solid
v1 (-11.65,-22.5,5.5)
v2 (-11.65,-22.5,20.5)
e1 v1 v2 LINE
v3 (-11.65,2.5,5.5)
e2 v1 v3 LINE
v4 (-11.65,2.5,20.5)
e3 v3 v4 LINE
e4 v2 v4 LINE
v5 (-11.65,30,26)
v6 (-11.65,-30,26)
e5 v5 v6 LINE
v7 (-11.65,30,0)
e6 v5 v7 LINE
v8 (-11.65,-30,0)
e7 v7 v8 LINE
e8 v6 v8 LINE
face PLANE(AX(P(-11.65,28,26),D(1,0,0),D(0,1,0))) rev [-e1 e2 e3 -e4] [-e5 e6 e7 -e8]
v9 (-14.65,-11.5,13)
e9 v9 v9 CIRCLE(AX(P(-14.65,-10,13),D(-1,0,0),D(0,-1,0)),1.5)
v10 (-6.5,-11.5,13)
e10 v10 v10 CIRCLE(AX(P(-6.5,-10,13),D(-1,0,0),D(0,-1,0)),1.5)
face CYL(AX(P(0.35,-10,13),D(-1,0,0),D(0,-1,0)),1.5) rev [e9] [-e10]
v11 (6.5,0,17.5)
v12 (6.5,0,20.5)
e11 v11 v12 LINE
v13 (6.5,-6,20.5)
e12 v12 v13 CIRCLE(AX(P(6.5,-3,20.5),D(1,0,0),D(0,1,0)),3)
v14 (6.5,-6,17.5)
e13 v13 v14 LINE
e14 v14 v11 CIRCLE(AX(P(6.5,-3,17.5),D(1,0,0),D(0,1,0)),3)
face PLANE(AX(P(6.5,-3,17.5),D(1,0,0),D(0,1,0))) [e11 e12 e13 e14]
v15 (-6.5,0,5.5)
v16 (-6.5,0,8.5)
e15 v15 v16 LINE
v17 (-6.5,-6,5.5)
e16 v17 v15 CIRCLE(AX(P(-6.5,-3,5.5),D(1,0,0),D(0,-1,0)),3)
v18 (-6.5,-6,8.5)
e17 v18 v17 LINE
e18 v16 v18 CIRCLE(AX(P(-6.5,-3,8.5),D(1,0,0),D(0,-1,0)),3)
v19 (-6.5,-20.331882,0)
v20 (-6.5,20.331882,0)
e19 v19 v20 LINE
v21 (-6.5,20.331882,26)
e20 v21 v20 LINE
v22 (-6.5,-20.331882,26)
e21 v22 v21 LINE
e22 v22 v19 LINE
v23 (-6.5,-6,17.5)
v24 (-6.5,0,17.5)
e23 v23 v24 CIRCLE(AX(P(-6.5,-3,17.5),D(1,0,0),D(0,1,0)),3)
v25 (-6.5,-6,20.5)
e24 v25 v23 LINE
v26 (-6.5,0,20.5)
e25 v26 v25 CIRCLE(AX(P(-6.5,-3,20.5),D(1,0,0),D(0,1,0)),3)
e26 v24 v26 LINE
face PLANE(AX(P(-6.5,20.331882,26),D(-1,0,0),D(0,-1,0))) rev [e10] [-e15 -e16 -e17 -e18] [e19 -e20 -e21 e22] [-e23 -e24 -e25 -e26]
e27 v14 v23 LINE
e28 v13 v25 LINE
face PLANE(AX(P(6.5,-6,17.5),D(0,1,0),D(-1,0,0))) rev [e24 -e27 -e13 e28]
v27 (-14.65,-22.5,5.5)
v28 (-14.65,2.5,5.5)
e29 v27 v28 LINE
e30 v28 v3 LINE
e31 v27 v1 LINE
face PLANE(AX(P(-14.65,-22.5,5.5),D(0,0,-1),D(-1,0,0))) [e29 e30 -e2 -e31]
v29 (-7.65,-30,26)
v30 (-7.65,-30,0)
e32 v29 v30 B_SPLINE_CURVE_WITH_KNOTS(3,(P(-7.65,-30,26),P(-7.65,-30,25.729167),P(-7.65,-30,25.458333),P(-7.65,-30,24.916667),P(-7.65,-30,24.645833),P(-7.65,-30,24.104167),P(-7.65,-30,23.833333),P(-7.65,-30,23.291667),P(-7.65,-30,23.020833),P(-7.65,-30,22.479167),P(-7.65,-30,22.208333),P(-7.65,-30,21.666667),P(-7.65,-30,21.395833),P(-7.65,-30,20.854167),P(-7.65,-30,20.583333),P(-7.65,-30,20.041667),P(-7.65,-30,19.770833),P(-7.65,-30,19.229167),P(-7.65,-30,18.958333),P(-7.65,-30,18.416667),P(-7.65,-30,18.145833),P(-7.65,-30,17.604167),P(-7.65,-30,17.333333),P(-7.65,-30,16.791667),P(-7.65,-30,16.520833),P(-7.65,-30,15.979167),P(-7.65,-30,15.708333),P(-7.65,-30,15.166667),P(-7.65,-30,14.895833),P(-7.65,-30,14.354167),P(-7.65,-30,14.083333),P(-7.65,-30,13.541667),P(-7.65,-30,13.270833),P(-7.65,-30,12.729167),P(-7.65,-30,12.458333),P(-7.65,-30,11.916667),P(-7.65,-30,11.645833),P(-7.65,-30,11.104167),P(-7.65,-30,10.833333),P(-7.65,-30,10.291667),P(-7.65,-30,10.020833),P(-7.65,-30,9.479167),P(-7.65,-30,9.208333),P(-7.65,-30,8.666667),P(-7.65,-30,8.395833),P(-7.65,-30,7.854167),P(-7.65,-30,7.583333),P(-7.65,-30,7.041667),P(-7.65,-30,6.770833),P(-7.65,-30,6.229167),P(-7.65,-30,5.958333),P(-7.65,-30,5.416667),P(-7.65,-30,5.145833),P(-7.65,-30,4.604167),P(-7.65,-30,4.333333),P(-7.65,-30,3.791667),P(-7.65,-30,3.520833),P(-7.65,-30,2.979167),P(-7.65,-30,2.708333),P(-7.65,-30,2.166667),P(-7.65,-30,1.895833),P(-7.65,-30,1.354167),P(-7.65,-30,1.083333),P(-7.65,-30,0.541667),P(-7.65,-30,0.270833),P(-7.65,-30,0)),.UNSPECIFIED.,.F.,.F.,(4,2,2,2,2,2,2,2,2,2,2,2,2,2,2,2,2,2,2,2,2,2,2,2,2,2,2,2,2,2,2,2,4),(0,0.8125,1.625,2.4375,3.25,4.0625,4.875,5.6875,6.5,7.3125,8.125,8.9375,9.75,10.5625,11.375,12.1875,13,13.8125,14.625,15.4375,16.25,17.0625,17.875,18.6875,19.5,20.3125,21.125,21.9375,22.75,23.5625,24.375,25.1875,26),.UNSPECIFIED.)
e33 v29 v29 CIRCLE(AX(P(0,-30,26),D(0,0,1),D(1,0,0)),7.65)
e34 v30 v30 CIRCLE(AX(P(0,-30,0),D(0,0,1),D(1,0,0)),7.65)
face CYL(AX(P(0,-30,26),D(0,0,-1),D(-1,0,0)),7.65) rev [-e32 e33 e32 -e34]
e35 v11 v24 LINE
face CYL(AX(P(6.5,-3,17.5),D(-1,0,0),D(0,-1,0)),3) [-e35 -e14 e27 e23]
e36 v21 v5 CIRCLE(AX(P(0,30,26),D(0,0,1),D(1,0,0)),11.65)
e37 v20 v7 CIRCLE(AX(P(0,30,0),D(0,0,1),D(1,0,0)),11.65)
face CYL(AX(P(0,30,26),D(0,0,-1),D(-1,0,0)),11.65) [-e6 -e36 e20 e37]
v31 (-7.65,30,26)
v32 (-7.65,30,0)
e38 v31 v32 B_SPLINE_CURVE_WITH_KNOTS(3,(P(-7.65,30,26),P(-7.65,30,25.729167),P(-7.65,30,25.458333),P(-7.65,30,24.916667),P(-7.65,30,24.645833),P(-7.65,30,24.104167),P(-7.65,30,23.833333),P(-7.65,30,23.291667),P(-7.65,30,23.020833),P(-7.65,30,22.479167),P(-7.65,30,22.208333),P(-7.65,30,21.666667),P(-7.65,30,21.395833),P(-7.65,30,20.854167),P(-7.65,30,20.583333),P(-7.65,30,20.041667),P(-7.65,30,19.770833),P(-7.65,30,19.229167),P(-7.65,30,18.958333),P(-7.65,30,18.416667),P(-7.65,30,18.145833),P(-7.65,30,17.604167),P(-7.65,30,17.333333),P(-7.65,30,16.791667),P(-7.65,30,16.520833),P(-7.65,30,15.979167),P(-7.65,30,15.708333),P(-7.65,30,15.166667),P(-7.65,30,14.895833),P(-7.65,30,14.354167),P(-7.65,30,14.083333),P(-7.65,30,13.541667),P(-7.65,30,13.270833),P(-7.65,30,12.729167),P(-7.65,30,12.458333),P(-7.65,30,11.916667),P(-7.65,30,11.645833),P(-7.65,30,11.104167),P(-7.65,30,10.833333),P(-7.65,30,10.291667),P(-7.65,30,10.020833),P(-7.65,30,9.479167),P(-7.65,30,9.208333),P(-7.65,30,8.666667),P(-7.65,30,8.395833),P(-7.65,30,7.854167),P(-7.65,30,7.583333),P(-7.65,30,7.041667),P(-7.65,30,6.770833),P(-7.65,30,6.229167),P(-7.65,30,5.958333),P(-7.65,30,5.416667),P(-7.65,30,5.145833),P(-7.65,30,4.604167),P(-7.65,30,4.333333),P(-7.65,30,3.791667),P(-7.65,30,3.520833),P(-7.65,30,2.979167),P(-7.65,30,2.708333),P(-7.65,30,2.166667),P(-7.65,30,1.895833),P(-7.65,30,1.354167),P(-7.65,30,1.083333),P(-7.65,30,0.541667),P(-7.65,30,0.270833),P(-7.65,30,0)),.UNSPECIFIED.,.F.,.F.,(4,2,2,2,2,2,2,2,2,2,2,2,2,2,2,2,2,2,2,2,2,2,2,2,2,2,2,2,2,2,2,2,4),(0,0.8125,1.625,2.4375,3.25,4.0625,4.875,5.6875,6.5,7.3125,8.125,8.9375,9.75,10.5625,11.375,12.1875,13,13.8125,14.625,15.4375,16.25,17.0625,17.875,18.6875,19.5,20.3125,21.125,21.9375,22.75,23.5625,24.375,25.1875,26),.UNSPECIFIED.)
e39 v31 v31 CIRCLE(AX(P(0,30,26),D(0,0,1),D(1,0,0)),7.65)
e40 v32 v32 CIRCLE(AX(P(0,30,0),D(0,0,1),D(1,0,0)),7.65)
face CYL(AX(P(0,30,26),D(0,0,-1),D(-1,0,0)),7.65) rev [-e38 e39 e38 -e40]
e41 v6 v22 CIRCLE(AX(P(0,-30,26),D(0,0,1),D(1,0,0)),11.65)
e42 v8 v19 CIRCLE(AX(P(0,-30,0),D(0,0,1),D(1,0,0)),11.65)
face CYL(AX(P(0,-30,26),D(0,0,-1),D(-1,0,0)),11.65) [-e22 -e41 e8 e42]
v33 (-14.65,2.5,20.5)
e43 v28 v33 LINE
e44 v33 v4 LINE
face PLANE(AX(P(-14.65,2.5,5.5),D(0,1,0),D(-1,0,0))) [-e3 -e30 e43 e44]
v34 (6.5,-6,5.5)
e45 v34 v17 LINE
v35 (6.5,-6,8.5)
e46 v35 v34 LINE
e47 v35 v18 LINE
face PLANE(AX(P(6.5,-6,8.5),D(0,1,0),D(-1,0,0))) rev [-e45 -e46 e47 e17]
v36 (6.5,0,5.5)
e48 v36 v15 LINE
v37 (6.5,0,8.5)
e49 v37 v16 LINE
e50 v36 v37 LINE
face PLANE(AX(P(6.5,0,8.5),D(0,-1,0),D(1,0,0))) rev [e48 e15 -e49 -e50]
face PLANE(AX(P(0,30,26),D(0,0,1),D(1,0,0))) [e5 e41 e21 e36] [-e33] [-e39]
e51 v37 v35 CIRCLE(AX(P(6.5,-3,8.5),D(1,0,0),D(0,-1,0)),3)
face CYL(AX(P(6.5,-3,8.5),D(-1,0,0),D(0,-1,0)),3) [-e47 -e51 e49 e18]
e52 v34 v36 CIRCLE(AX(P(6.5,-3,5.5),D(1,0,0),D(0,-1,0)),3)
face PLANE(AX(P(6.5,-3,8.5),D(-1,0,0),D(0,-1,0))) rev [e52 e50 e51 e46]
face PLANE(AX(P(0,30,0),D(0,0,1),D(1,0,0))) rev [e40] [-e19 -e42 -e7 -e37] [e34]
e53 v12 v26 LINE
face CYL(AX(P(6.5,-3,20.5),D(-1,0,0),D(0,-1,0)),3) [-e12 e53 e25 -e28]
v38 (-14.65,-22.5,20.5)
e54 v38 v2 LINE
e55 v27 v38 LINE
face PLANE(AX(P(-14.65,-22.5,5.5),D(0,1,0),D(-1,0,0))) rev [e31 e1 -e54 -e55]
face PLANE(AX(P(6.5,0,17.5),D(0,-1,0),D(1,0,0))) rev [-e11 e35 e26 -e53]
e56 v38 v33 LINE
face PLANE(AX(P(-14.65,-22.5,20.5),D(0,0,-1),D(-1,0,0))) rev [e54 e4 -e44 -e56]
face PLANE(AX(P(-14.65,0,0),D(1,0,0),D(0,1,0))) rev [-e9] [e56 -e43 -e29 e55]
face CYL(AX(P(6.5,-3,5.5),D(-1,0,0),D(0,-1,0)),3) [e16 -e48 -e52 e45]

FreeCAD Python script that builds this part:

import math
import FreeCAD as App
import Part
import Sketcher
Q = App.Units.Quantity

doc = App.newDocument("Part")
body = doc.addObject("PartDesign::Body", "Body")

# Sketch on XY plane
sketch1 = body.newObject("Sketcher::SketchObject", "Sketch")
sketch1.AttachmentSupport = (doc.getObject("XY_Plane"), [""])
sketch1.MapMode = "FlatFace"
sketch1.addGeometry([
    Part.LineSegment(App.Vector(-12, 30, 0), App.Vector(-12, -30, 0)),  # 0
    Part.ArcOfCircle(Part.Circle(App.Vector(0, -30, 0), App.Vector(0, 0, 1), 12), math.radians(180), math.radians(484)),  # 1
    Part.LineSegment(App.Vector(-6, -20, 0), App.Vector(-6, 20, 0)),  # 2
    Part.ArcOfCircle(Part.Circle(App.Vector(0, 30, 0), App.Vector(0, 0, 1), 12), math.radians(-124), math.radians(180)),  # 3
    Part.Circle(App.Vector(0, -30, 0), App.Vector(0, 0, 1), 8),  # 4
    Part.Circle(App.Vector(0, 30, 0), App.Vector(0, 0, 1), 8),  # 5
], False)
sketch1.addConstraint([
    Sketcher.Constraint("Tangent", 0, 2, 1, 1),
    Sketcher.Constraint("Coincident", 1, 2, 2, 1),
    Sketcher.Constraint("Coincident", 2, 2, 3, 1),
    Sketcher.Constraint("Tangent", 3, 2, 0, 1),
    Sketcher.Constraint("Vertical", 0),
    Sketcher.Constraint("Vertical", 2),
    Sketcher.Constraint("Coincident", 4, 3, 1, 3),
    Sketcher.Constraint("Coincident", 5, 3, 3, 3),
    Sketcher.Constraint("Equal", 1, 3),
    Sketcher.Constraint("Equal", 4, 5),
    Sketcher.Constraint("Symmetric", 1, 3, 3, 3, -1, 1),
    Sketcher.Constraint("Diameter", 4, Q("15.3 mm")),
    Sketcher.Constraint("DistanceY", 0, 2, 0, 1, Q("60 mm")),
    Sketcher.Constraint("Radius", 1, Q("11.65 mm")),
    Sketcher.Constraint("DistanceX", 1, 2, -1, 1, Q("6.5 mm")),
])
pad1 = body.newObject("PartDesign::Pad", "Pad")
pad1.Profile = sketch1
pad1.Length = 26

# Sketch on YZ plane
sketch2 = body.newObject("Sketcher::SketchObject", "Sketch001")
sketch2.AttachmentSupport = (doc.getObject("YZ_Plane"), [""])
sketch2.MapMode = "FlatFace"
sketch2.AttachmentOffset = App.Placement(App.Vector(0, 0, -6.5), App.Rotation())
sketch2.addGeometry([
    Part.LineSegment(App.Vector(-6, 20.5, 0), App.Vector(-6, 17.5, 0)),  # 0
    Part.ArcOfCircle(Part.Circle(App.Vector(-3, 17.5, 0), App.Vector(0, 0, 1), 3), math.radians(180), math.radians(360)),  # 1
    Part.LineSegment(App.Vector(0, 17.5, 0), App.Vector(0, 20.5, 0)),  # 2
    Part.ArcOfCircle(Part.Circle(App.Vector(-3, 20.5, 0), App.Vector(0, 0, 1), 3), math.radians(0), math.radians(180)),  # 3
    Part.LineSegment(App.Vector(-6, 8.5, 0), App.Vector(-6, 5.5, 0)),  # 4
    Part.ArcOfCircle(Part.Circle(App.Vector(-3, 5.5, 0), App.Vector(0, 0, 1), 3), math.radians(180), math.radians(360)),  # 5
    Part.LineSegment(App.Vector(0, 5.5, 0), App.Vector(0, 8.5, 0)),  # 6
    Part.ArcOfCircle(Part.Circle(App.Vector(-3, 8.5, 0), App.Vector(0, 0, 1), 3), math.radians(0), math.radians(180)),  # 7
], False)
sketch2.addConstraint([
    Sketcher.Constraint("Tangent", 0, 2, 1, 1),
    Sketcher.Constraint("Tangent", 1, 2, 2, 1),
    Sketcher.Constraint("Tangent", 2, 2, 3, 1),
    Sketcher.Constraint("Tangent", 3, 2, 0, 1),
    Sketcher.Constraint("Tangent", 4, 2, 5, 1),
    Sketcher.Constraint("Tangent", 5, 2, 6, 1),
    Sketcher.Constraint("Tangent", 6, 2, 7, 1),
    Sketcher.Constraint("Tangent", 7, 2, 4, 1),
    Sketcher.Constraint("Vertical", 0),
    Sketcher.Constraint("Vertical", 2),
    Sketcher.Constraint("Vertical", 4),
    Sketcher.Constraint("Vertical", 6),
    Sketcher.Constraint("Equal", 3, 5),
    Sketcher.Constraint("PointOnObject", 1, 2, -2),
    Sketcher.Constraint("PointOnObject", 5, 2, -2),
    Sketcher.Constraint("Equal", 2, 4),
    Sketcher.Constraint("Radius", 1, Q("3 mm")),
    Sketcher.Constraint("DistanceY", 0, 2, 0, 1, Q("3 mm")),
    Sketcher.Constraint("DistanceY", 5, 3, 1, 3, Q("12 mm")),
    Sketcher.Constraint("DistanceY", -1, 1, 1, 3, Q("17.5 mm")),
])
pad2 = body.newObject("PartDesign::Pad", "Pad001")
pad2.Profile = sketch2
pad2.Length = 13

# Sketch on YZ plane
sketch3 = body.newObject("Sketcher::SketchObject", "Sketch002")
sketch3.AttachmentSupport = (doc.getObject("YZ_Plane"), [""])
sketch3.MapMode = "FlatFace"
sketch3.AttachmentOffset = App.Placement(App.Vector(0, 0, -11.65), App.Rotation())
sketch3.addGeometry([
    Part.LineSegment(App.Vector(2, 6, 0), App.Vector(-22, 6, 0)),
    Part.LineSegment(App.Vector(-22, 6, 0), App.Vector(-22, 20, 0)),
    Part.LineSegment(App.Vector(-22, 20, 0), App.Vector(2, 20, 0)),
    Part.LineSegment(App.Vector(2, 20, 0), App.Vector(2, 6, 0)),
], False)
sketch3.addConstraint([
    Sketcher.Constraint("Coincident", 0, 2, 1, 1),
    Sketcher.Constraint("Coincident", 1, 2, 2, 1),
    Sketcher.Constraint("Coincident", 2, 2, 3, 1),
    Sketcher.Constraint("Coincident", 3, 2, 0, 1),
    Sketcher.Constraint("Horizontal", 0),
    Sketcher.Constraint("Vertical", 1),
    Sketcher.Constraint("Horizontal", 2),
    Sketcher.Constraint("Vertical", 3),
    Sketcher.Constraint("DistanceX", 0, 2, 0, 1, Q("25 mm")),
    Sketcher.Constraint("DistanceY", 1, 1, 1, 2, Q("15 mm")),
    Sketcher.Constraint("DistanceX", 0, 2, -1, 1, Q("22.5 mm")),
    Sketcher.Constraint("DistanceY", -1, 1, 0, 2, Q("5.5 mm")),
])
pad3 = body.newObject("PartDesign::Pad", "Pad002")
pad3.Profile = sketch3
pad3.Length = 3
pad3.Reversed = True

# Sketch on YZ plane
sketch4 = body.newObject("Sketcher::SketchObject", "Sketch003")
sketch4.AttachmentSupport = (doc.getObject("YZ_Plane"), [""])
sketch4.MapMode = "FlatFace"
sketch4.AttachmentOffset = App.Placement(App.Vector(0, 0, -14.65), App.Rotation())
sketch4.addGeometry(Part.Circle(App.Vector(-10, 13, 0), App.Vector(0, 0, 1), 1.5), False)
sketch4.addConstraint([
    Sketcher.Constraint("Diameter", 0, Q("3 mm")),
    Sketcher.Constraint("DistanceX", 0, 3, -1, 1, Q("10 mm")),
    Sketcher.Constraint("DistanceY", -1, 1, 0, 3, Q("13 mm")),
])
pocket1 = body.newObject("PartDesign::Pocket", "Pocket")
pocket1.Profile = sketch4
pocket1.Length = 15
pocket1.Reversed = True

doc.recompute()
